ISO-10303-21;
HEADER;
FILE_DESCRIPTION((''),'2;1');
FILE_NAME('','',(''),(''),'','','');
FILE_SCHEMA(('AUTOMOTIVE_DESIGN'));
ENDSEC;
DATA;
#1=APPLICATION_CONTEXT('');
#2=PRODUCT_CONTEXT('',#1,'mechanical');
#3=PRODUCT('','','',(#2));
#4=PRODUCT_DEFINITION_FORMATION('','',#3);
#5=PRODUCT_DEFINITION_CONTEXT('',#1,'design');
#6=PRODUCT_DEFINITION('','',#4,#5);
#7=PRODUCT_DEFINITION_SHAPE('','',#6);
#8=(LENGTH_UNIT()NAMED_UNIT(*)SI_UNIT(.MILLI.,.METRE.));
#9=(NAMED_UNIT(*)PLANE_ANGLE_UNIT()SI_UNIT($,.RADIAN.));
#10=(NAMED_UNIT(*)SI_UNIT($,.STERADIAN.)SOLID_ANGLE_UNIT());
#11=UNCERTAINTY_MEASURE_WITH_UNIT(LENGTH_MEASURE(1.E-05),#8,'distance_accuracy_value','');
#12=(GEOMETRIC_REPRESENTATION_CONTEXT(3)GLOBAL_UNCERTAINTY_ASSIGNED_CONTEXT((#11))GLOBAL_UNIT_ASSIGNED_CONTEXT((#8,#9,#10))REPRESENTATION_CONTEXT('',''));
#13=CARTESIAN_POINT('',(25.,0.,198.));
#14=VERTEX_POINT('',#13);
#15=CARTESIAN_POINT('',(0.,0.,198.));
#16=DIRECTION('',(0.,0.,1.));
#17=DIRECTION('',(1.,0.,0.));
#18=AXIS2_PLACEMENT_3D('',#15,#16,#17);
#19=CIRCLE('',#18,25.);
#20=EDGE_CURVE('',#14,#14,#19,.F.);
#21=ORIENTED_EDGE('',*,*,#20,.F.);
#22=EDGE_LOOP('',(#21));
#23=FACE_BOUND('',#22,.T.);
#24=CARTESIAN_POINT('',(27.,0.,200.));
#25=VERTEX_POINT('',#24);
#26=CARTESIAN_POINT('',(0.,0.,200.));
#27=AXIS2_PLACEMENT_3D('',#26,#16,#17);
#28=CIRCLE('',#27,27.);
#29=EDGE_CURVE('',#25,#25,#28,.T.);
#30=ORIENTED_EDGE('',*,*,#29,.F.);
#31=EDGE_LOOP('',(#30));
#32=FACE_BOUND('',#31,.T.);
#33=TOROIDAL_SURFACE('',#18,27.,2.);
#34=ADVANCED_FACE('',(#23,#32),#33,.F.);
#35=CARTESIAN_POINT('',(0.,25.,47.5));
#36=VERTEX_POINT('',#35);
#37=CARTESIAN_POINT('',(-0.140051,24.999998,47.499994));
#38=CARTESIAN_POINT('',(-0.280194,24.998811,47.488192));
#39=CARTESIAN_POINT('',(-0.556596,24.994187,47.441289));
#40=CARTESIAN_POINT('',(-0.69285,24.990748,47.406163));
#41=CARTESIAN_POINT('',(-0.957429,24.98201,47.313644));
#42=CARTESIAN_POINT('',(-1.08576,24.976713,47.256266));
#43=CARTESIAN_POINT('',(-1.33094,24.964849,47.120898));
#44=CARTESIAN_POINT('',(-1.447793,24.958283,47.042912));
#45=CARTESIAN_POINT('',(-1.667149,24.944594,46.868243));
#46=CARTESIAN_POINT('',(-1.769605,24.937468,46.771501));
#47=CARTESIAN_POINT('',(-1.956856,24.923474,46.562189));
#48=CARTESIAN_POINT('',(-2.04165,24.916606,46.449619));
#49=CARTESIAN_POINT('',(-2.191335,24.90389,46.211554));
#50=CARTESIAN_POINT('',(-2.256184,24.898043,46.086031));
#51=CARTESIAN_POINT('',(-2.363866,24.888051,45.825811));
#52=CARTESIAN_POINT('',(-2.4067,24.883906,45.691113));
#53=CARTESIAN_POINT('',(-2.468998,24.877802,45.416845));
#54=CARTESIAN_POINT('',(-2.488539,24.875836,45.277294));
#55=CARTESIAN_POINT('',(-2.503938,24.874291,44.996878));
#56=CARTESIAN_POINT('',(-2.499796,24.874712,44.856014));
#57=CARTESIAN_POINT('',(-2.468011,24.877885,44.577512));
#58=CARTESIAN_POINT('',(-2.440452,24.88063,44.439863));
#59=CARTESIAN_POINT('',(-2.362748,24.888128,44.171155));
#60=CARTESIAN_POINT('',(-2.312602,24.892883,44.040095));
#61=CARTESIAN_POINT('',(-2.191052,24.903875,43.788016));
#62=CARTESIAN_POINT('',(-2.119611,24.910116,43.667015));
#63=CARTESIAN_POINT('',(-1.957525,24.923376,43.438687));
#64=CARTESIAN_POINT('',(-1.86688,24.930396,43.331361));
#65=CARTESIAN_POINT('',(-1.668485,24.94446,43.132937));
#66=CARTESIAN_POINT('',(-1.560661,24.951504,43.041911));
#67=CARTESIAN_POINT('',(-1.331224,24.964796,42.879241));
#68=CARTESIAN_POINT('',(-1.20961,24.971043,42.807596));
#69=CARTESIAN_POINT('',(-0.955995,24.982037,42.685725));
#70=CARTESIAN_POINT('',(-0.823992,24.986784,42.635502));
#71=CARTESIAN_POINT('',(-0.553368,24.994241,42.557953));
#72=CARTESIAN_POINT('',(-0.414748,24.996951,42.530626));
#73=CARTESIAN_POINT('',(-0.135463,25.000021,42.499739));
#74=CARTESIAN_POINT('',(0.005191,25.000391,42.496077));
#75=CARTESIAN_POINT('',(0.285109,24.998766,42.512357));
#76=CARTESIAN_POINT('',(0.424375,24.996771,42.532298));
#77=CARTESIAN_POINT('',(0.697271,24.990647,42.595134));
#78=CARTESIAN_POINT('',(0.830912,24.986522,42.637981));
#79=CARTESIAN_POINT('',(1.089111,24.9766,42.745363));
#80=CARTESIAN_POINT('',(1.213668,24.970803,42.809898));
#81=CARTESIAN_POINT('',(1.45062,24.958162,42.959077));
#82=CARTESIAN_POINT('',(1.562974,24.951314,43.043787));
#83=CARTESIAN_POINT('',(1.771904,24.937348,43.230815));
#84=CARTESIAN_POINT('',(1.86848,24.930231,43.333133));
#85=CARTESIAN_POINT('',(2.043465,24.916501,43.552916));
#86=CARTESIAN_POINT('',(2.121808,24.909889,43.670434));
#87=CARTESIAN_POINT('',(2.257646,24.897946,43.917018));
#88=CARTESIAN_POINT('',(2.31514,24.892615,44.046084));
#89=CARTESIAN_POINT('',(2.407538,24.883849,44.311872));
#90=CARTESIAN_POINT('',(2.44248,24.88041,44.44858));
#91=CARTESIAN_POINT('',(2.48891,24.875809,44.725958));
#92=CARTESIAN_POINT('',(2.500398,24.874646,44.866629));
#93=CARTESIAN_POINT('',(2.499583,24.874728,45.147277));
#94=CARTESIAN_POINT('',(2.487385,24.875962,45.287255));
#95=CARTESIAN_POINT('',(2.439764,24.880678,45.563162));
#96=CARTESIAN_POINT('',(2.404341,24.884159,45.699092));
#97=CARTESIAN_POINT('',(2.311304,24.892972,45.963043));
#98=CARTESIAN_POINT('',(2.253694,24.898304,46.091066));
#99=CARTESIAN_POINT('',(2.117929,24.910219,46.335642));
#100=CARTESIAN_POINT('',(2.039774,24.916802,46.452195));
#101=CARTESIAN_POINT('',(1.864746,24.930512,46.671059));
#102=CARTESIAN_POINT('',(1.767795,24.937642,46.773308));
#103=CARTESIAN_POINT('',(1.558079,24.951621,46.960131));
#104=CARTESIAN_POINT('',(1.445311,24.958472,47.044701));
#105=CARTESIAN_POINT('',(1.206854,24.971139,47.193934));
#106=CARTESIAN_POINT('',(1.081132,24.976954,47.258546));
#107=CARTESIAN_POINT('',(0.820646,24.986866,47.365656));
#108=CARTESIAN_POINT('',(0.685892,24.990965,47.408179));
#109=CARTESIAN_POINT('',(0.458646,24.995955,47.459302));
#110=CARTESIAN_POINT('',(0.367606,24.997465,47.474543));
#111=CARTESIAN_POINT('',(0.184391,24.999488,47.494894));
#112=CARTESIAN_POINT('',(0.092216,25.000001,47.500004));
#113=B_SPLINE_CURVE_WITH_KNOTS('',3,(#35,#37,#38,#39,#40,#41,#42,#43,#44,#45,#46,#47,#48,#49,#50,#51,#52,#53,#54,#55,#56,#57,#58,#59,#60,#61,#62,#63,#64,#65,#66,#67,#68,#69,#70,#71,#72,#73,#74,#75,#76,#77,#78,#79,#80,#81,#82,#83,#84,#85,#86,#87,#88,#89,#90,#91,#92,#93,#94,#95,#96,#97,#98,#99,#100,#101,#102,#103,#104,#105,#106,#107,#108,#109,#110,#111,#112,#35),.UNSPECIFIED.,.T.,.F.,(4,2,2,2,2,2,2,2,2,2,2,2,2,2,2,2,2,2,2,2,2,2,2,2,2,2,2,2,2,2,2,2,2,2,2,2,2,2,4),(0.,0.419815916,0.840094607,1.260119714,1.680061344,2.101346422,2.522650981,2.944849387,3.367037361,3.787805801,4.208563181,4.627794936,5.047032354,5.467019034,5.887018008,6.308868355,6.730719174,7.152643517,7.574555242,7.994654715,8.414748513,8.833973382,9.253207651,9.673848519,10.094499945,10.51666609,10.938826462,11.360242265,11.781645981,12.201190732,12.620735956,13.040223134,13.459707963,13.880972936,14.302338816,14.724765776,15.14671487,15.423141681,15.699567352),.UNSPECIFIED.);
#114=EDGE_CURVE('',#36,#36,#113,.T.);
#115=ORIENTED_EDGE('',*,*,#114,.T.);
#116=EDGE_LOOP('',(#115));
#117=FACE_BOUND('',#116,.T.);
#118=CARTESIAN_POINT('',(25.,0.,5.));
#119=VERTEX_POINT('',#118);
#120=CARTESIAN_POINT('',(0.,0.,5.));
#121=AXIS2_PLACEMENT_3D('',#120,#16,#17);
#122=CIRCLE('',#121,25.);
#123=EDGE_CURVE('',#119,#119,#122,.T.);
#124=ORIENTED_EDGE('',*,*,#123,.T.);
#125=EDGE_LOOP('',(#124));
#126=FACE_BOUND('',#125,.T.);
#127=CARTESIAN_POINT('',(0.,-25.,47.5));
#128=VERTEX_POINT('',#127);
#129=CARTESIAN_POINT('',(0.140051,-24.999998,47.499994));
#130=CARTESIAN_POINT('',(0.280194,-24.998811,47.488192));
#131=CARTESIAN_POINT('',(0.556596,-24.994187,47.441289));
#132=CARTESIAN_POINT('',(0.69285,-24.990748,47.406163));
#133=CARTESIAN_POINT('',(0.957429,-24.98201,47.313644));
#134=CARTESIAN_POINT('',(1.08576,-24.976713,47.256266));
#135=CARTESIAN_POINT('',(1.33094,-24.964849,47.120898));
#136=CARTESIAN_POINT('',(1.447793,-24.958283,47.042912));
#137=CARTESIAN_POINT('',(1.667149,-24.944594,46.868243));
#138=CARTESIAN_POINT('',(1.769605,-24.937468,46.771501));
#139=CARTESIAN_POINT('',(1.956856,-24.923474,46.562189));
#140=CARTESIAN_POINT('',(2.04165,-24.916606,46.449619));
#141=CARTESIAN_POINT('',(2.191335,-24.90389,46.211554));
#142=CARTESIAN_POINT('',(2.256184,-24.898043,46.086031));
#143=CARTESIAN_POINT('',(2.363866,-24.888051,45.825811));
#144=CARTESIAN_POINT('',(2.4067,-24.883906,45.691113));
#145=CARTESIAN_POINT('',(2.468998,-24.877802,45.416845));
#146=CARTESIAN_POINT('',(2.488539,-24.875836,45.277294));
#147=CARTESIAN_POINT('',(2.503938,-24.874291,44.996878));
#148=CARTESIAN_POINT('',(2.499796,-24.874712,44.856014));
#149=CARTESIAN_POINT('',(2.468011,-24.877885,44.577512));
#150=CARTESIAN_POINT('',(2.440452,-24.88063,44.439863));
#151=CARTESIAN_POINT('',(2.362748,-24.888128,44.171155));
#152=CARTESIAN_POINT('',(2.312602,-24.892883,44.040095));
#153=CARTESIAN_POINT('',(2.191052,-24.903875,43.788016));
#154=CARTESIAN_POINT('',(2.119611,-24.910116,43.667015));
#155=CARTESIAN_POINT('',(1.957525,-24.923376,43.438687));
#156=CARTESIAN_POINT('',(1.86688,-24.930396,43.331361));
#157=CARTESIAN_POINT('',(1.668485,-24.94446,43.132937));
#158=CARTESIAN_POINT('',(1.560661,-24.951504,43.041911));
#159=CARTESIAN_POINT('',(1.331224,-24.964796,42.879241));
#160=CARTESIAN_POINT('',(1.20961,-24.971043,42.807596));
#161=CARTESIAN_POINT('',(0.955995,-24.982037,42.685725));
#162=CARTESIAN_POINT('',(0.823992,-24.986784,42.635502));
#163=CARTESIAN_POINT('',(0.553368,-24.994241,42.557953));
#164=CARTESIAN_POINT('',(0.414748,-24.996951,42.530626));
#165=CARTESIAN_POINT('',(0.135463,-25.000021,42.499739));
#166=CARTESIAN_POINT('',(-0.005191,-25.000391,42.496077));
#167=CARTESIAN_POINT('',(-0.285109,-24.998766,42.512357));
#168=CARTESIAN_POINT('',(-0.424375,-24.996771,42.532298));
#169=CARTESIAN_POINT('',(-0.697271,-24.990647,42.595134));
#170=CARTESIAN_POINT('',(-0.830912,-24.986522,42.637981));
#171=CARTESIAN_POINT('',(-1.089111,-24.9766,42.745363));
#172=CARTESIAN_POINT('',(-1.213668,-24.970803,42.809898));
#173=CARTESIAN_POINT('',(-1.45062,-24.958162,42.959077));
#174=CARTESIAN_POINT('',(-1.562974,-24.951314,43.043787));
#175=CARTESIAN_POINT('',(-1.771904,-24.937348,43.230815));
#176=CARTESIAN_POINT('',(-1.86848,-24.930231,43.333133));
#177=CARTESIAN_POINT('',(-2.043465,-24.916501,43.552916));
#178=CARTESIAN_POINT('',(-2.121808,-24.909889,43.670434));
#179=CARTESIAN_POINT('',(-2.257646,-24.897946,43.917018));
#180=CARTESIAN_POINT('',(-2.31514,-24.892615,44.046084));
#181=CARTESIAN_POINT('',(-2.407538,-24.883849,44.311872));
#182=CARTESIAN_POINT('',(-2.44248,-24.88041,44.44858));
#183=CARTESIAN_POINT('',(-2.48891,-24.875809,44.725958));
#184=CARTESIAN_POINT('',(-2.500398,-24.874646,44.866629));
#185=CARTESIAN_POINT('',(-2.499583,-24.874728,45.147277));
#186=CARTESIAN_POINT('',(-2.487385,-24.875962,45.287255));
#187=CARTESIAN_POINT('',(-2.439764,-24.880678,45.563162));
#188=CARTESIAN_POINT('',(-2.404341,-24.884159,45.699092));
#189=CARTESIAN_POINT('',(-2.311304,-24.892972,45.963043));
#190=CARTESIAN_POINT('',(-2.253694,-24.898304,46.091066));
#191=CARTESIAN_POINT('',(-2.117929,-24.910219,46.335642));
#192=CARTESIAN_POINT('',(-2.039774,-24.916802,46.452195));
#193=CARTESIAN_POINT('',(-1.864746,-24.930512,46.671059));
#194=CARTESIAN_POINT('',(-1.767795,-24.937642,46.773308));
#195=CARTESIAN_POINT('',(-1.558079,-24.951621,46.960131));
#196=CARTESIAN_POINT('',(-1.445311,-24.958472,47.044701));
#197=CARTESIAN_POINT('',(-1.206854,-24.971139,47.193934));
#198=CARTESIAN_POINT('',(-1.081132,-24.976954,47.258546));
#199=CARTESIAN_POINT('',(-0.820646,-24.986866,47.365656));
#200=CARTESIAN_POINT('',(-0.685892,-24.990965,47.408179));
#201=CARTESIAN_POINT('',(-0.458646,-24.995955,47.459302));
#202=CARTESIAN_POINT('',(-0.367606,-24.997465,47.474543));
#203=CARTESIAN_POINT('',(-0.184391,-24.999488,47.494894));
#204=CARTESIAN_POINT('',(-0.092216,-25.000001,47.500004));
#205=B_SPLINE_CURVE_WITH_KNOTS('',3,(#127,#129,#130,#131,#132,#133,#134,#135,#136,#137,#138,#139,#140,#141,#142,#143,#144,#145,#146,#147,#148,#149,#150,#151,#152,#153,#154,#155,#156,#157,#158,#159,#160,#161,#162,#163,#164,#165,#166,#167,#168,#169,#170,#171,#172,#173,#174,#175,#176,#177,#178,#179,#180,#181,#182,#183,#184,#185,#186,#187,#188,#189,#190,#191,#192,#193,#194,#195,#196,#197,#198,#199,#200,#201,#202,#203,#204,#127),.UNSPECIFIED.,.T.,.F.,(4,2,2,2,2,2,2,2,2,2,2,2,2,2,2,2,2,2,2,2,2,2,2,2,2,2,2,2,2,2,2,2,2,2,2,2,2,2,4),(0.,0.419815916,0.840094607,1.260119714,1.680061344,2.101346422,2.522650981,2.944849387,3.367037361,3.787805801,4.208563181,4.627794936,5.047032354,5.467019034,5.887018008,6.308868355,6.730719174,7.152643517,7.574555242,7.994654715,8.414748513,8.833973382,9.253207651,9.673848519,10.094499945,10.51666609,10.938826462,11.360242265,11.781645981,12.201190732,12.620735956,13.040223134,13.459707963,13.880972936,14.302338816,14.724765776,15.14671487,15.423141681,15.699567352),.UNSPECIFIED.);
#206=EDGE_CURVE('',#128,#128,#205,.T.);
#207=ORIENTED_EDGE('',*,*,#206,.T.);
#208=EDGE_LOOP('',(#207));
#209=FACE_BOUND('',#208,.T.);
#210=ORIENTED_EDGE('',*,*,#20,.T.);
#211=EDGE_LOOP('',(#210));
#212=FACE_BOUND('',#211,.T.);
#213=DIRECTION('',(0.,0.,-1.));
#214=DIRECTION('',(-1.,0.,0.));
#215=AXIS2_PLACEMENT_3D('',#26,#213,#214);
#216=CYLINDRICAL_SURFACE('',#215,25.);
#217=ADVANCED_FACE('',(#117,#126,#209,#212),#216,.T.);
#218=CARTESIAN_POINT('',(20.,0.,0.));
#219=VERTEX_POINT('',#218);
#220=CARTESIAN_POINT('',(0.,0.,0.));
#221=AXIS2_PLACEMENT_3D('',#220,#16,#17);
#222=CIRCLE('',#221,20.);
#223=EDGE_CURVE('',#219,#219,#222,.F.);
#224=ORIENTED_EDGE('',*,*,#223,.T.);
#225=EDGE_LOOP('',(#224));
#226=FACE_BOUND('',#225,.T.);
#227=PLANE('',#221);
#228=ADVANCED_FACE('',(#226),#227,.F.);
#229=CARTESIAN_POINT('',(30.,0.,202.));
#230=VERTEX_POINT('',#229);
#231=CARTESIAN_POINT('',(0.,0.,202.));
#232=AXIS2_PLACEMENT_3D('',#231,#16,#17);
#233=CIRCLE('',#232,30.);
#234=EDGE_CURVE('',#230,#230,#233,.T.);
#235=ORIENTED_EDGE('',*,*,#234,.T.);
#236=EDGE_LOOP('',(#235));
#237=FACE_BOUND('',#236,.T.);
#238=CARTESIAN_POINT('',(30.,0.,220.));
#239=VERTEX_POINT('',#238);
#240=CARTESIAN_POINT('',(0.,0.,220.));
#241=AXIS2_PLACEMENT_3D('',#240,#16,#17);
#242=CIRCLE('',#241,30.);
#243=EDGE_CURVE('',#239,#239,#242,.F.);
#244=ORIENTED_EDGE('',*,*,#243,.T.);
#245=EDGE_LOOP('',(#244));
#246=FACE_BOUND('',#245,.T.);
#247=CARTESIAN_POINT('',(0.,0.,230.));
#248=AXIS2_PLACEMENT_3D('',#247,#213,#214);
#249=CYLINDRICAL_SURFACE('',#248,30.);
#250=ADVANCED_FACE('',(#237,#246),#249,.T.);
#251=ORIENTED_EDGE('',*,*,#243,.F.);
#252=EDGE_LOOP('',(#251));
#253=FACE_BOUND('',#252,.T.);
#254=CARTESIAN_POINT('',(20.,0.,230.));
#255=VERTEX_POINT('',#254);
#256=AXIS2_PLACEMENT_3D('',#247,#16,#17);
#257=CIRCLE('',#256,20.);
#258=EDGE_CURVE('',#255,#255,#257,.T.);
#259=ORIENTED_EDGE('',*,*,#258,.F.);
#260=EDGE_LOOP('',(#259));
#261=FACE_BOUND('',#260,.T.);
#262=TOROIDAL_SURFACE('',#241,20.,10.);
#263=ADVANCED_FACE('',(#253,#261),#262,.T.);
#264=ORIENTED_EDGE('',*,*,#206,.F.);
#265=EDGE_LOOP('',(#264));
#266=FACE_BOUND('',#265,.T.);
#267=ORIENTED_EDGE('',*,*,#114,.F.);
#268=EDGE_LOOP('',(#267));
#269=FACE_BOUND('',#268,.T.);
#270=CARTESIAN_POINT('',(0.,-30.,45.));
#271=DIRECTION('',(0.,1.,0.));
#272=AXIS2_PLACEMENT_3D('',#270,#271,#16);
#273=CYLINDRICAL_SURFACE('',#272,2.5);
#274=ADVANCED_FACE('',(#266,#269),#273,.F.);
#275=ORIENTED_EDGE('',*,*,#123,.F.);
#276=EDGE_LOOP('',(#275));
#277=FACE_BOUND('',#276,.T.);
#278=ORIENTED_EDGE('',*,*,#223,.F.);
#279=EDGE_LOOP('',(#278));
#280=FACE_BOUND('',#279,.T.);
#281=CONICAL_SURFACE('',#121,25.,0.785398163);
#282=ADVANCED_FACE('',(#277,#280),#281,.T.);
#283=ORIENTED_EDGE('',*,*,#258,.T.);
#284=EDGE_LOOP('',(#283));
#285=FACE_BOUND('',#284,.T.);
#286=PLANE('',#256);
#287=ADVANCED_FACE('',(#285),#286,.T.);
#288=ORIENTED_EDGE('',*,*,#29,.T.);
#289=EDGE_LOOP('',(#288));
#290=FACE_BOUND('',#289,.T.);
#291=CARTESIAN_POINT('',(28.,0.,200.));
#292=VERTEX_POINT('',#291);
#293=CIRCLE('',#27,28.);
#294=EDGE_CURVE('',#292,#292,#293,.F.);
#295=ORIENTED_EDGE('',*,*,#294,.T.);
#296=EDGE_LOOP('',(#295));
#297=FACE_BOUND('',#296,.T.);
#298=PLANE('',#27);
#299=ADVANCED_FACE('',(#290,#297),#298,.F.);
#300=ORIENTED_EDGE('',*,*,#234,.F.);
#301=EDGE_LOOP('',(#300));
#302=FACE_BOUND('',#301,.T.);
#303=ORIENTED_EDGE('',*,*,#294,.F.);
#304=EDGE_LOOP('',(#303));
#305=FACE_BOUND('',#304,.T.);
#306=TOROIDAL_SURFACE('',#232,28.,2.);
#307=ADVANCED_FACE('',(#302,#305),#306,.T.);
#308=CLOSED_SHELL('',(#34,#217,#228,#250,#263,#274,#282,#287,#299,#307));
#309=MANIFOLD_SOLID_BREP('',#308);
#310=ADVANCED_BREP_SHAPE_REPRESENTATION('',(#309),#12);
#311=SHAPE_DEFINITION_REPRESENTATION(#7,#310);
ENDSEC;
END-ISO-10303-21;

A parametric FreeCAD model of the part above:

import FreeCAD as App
import Part
import Sketcher
from FreeCAD import Vector
Q = App.Units.Quantity


def edges_at(feature, points):
    """Names of the edges that pass closest to the given points."""
    edges = feature.Shape.Edges
    near = lambda p: min(range(len(edges)), key=lambda i: edges[i].distToShape(Part.Vertex(*p))[0])
    return sorted({f"Edge{near(p) + 1}" for p in points})

doc = App.newDocument("Part")
body = doc.addObject("PartDesign::Body", "Body")

sketch1 = doc.addObject("Sketcher::SketchObject", "Sketch")
body.addObject(sketch1)
sketch1.AttachmentSupport = (doc.XY_Plane, [""])
sketch1.MapMode = "FlatFace"
sketch1.addGeometry(Part.Circle(Vector(0, 0, 0), Vector(0, 0, 1), 25), False)
sketch1.addConstraint([
    Sketcher.Constraint("Coincident", 0, 3, -1, 1),
    Sketcher.Constraint("Diameter", 0, Q("50 mm")),
])
pad1 = doc.addObject("PartDesign::Pad", "Pad")
body.addObject(pad1)
pad1.Profile = sketch1
pad1.Length = 200

sketch2 = doc.addObject("Sketcher::SketchObject", "Sketch001")
body.addObject(sketch2)
sketch2.AttachmentSupport = (doc.XY_Plane, [""])
sketch2.MapMode = "FlatFace"
sketch2.AttachmentOffset = App.Placement(Vector(0, 0, 200), App.Rotation())
sketch2.addGeometry(Part.Circle(Vector(0, 0, 0), Vector(0, 0, 1), 30), False)
sketch2.addConstraint([
    Sketcher.Constraint("Coincident", 0, 3, -1, 1),
    Sketcher.Constraint("Diameter", 0, Q("60 mm")),
])
pad2 = doc.addObject("PartDesign::Pad", "Pad001")
body.addObject(pad2)
pad2.Profile = sketch2
pad2.Length = 30
doc.recompute()

fillet = doc.addObject("PartDesign::Fillet", "Fillet")
body.addObject(fillet)
fillet.Base = (pad2, edges_at(pad2, [(-30, 0, 230)]))
fillet.Radius = 10
doc.recompute()

fillet2 = doc.addObject("PartDesign::Fillet", "Fillet001")
body.addObject(fillet2)
fillet2.Base = (fillet, edges_at(fillet, [(-25, 0, 200), (-30, 0, 200)]))
fillet2.Radius = 2
doc.recompute()

chamfer = doc.addObject("PartDesign::Chamfer", "Chamfer")
body.addObject(chamfer)
chamfer.Base = (fillet2, edges_at(fillet2, [(-25, 0, 0)]))
chamfer.Size = 5

sketch3 = doc.addObject("Sketcher::SketchObject", "Sketch002")
body.addObject(sketch3)
sketch3.AttachmentSupport = (doc.XZ_Plane, [""])
sketch3.MapMode = "FlatFace"
sketch3.addGeometry(Part.Circle(Vector(0, 45, 0), Vector(0, 0, 1), 2.5), False)
sketch3.addConstraint([
    Sketcher.Constraint("PointOnObject", 0, 3, -2),
    Sketcher.Constraint("Diameter", 0, Q("5 mm")),
    Sketcher.Constraint("DistanceY", -1, 1, 0, 3, Q("45 mm")),
])
pocket1 = doc.addObject("PartDesign::Pocket", "Pocket")
body.addObject(pocket1)
pocket1.Profile = sketch3
pocket1.Type = "ThroughAll"
pocket1.Midplane = True

doc.recompute()
